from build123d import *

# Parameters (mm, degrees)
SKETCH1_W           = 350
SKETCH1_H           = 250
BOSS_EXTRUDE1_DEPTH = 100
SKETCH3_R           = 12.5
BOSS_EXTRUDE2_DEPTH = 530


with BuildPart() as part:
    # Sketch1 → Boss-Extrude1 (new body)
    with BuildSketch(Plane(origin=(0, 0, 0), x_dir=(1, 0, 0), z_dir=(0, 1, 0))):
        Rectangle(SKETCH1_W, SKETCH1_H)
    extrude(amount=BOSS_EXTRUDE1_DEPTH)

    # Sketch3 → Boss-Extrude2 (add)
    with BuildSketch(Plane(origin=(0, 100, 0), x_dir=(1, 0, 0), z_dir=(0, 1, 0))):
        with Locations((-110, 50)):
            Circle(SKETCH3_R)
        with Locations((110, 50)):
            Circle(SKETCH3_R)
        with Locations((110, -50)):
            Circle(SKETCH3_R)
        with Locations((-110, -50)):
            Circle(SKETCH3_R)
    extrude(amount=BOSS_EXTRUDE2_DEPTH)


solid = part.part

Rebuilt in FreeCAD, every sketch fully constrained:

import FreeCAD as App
import Part
import Sketcher

V = App.Vector

doc = App.newDocument("Part")
params = doc.addObject("Spreadsheet::Sheet", "Params")
for row, (alias, value) in enumerate([
    ("sketch1_width", "350 mm"),
    ("sketch1_height", "250 mm"),
    ("pad1_length", "100 mm"),
    ("sketch2_diameter", "25 mm"),
    ("pad2_length", "530 mm"),
], start=1):
    params.set(f"A{row}", alias)
    params.set(f"B{row}", "=" + value)
    params.setAlias(f"B{row}", alias)

body = doc.addObject("PartDesign::Body", "Body")

# Sketch on XZ plane
sketch1 = body.newObject("Sketcher::SketchObject", "Sketch")
sketch1.AttachmentSupport = (doc.getObject("XZ_Plane"), [""])
sketch1.MapMode = "FlatFace"
sketch1.addGeometry(Part.LineSegment(V(-175, -125, 0), V(-175, 125, 0)), False)
sketch1.addGeometry(Part.LineSegment(V(-175, 125, 0), V(175, 125, 0)), False)
sketch1.addGeometry(Part.LineSegment(V(175, 125, 0), V(175, -125, 0)), False)
sketch1.addGeometry(Part.LineSegment(V(175, -125, 0), V(-175, -125, 0)), False)
sketch1.addConstraint(Sketcher.Constraint("Coincident", 0, 2, 1, 1))
sketch1.addConstraint(Sketcher.Constraint("Coincident", 1, 2, 2, 1))
sketch1.addConstraint(Sketcher.Constraint("Coincident", 2, 2, 3, 1))
sketch1.addConstraint(Sketcher.Constraint("Coincident", 3, 2, 0, 1))
sketch1.addConstraint(Sketcher.Constraint("Vertical", 0))
sketch1.addConstraint(Sketcher.Constraint("Horizontal", 1))
sketch1.addConstraint(Sketcher.Constraint("Vertical", 2))
sketch1.addConstraint(Sketcher.Constraint("Horizontal", 3))
sketch1.addConstraint(Sketcher.Constraint("Symmetric", 0, 2, 2, 2, -1, 1))
sketch1.addConstraint(Sketcher.Constraint("DistanceX", 1, 1, 1, 2, 350.0))
sketch1.addConstraint(Sketcher.Constraint("DistanceY", 0, 1, 0, 2, 250.0))
sketch1.setExpression("Constraints[9]", "Params.sketch1_width")
sketch1.setExpression("Constraints[10]", "Params.sketch1_height")
pad1 = body.newObject("PartDesign::Pad", "Pad")
pad1.Profile = sketch1
pad1.setExpression("Length", "Params.pad1_length")
pad1.Reversed = True

# Sketch on XZ plane
sketch2 = body.newObject("Sketcher::SketchObject", "Sketch001")
sketch2.AttachmentSupport = (doc.getObject("XZ_Plane"), [""])
sketch2.MapMode = "FlatFace"
sketch2.AttachmentOffset = App.Placement(V(0, 0, -100), App.Rotation())
sketch2.addGeometry(Part.Circle(V(-110, -50, 0), V(0, 0, 1), 12), False)
sketch2.addGeometry(Part.Circle(V(110, -50, 0), V(0, 0, 1), 12), False)
sketch2.addGeometry(Part.Circle(V(110, 50, 0), V(0, 0, 1), 12), False)
sketch2.addGeometry(Part.Circle(V(-110, 50, 0), V(0, 0, 1), 12), False)
sketch2.addConstraint(Sketcher.Constraint("Equal", 0, 1))
sketch2.addConstraint(Sketcher.Constraint("Equal", 1, 2))
sketch2.addConstraint(Sketcher.Constraint("Equal", 2, 3))
sketch2.addConstraint(Sketcher.Constraint("Symmetric", 0, 3, 2, 3, -1, 1))
sketch2.addConstraint(Sketcher.Constraint("Symmetric", 1, 3, 3, 3, -1, 1))
sketch2.addConstraint(Sketcher.Constraint("Symmetric", 0, 3, 1, 3, -2))
sketch2.addConstraint(Sketcher.Constraint("Diameter", 0, 25.0))
sketch2.addConstraint(Sketcher.Constraint("DistanceX", 0, 3, -1, 1, 110.0))
sketch2.addConstraint(Sketcher.Constraint("DistanceY", 0, 3, -1, 1, 50.0))
sketch2.setExpression("Constraints[6]", "Params.sketch2_diameter")
pad2 = body.newObject("PartDesign::Pad", "Pad001")
pad2.Profile = sketch2
pad2.setExpression("Length", "Params.pad2_length")
pad2.Reversed = True

doc.recompute()
